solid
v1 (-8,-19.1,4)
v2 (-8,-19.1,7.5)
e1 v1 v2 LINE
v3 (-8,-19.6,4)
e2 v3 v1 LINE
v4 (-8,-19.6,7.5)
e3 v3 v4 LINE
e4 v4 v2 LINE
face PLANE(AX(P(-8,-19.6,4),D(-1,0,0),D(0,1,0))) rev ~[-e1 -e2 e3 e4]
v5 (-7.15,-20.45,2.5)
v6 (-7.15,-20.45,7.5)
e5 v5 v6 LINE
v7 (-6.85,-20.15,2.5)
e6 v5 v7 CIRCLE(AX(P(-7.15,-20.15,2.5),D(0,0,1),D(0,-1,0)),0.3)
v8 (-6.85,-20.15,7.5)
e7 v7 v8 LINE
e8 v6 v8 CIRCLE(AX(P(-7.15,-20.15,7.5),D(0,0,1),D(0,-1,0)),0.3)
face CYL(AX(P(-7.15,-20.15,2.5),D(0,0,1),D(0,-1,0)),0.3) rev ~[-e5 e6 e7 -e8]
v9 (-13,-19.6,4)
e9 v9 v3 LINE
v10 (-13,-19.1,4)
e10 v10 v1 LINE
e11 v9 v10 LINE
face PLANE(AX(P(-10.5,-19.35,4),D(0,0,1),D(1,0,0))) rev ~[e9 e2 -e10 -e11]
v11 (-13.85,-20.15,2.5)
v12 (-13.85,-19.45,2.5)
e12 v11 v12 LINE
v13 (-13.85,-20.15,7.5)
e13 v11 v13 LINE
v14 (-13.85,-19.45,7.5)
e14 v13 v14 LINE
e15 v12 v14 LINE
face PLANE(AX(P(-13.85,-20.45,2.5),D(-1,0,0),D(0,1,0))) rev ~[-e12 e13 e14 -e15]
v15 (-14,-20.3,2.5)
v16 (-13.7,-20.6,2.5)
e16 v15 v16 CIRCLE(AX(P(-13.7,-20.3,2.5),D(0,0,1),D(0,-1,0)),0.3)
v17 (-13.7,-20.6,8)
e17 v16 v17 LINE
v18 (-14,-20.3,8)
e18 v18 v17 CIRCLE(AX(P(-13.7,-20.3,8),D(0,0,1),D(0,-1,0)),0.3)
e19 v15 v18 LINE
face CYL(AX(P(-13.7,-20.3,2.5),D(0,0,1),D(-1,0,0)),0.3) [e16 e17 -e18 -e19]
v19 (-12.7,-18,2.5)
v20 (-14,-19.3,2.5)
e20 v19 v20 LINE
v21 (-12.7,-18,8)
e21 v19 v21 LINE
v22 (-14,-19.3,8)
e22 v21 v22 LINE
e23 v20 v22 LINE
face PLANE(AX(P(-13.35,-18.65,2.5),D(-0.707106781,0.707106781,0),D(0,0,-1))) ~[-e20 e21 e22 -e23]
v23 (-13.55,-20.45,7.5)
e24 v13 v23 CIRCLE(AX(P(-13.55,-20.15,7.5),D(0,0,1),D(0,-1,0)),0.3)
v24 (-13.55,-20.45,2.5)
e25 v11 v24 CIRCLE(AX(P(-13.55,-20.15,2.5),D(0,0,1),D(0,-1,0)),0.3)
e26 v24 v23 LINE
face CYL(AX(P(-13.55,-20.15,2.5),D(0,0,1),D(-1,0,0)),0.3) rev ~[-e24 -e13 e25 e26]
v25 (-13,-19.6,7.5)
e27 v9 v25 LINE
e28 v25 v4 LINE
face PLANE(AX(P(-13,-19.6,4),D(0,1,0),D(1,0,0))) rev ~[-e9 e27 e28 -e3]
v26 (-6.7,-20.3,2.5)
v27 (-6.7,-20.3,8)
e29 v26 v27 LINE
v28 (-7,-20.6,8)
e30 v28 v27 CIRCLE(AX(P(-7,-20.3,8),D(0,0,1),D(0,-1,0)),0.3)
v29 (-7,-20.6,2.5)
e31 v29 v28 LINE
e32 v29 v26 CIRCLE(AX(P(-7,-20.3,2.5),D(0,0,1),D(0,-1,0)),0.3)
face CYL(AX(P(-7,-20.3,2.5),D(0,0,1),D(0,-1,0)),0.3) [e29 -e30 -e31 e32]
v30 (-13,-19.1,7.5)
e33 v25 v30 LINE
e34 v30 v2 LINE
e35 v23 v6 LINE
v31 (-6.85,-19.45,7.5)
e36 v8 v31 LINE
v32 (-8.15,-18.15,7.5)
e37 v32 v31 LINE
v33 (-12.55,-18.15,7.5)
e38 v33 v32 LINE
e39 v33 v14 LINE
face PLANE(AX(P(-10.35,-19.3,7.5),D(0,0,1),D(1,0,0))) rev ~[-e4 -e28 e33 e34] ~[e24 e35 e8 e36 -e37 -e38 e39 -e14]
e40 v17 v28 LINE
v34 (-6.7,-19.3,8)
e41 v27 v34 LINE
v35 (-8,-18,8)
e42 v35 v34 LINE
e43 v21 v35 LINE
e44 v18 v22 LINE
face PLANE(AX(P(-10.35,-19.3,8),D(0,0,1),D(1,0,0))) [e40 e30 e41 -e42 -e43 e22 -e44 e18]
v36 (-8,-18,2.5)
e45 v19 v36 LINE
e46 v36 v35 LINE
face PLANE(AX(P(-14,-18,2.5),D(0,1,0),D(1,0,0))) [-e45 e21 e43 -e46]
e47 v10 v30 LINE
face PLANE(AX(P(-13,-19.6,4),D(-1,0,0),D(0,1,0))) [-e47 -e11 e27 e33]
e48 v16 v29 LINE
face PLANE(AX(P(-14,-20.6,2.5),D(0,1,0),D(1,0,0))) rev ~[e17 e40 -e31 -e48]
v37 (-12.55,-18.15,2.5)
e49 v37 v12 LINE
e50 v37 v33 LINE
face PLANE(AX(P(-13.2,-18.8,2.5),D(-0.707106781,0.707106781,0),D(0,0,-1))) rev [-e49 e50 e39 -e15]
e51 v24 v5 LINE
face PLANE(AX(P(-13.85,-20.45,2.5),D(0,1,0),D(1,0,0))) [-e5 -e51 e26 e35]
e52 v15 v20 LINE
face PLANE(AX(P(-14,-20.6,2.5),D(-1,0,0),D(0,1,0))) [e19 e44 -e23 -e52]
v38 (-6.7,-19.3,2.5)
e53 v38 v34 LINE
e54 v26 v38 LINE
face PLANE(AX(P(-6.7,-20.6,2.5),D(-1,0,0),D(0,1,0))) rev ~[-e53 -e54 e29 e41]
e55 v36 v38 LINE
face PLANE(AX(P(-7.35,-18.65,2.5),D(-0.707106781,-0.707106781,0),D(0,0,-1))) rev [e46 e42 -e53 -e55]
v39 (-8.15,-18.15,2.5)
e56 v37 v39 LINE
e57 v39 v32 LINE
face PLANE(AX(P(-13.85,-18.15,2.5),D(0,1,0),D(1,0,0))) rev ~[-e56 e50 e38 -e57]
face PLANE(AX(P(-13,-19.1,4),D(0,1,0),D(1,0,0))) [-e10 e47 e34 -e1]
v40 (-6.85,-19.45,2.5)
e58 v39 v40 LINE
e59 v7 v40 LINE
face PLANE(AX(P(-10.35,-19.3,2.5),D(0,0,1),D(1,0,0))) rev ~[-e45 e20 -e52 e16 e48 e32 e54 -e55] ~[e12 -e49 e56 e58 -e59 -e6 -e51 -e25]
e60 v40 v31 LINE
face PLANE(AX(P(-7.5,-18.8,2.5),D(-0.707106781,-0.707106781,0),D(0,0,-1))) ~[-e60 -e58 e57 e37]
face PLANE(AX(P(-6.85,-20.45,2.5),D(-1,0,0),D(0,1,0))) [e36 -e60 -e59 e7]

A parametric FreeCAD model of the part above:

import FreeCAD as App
import Part
import Sketcher
Q = App.Units.Quantity


def edges_at(feature, points):
    """Names of the edges that pass closest to the given points."""
    edges = feature.Shape.Edges
    near = lambda p: min(range(len(edges)), key=lambda i: edges[i].distToShape(Part.Vertex(*p))[0])
    return sorted({f"Edge{near(p) + 1}" for p in points})

doc = App.newDocument("Part")
body = doc.addObject("PartDesign::Body", "Body")

sketch1 = body.newObject("Sketcher::SketchObject", "Sketch")
sketch1.AttachmentSupport = (doc.getObject("XY_Plane"), [""])
sketch1.MapMode = "FlatFace"
sketch1.addGeometry(Part.LineSegment(App.Vector(0, 2.3, 0), App.Vector(0, 0, 0)), False)
sketch1.addGeometry(Part.LineSegment(App.Vector(0, 0, 0), App.Vector(7, 0, 0)), False)
sketch1.addGeometry(Part.LineSegment(App.Vector(7, 0, 0), App.Vector(7, 2.3, 0)), False)
sketch1.addGeometry(Part.LineSegment(App.Vector(7, 2.3, 0), App.Vector(0, 2.3, 0)), False)
sketch1.addConstraint(Sketcher.Constraint("Coincident", 0, 2, 1, 1))
sketch1.addConstraint(Sketcher.Constraint("Coincident", 1, 2, 2, 1))
sketch1.addConstraint(Sketcher.Constraint("Coincident", 2, 2, 3, 1))
sketch1.addConstraint(Sketcher.Constraint("Coincident", 3, 2, 0, 1))
sketch1.addConstraint(Sketcher.Constraint("Vertical", 0))
sketch1.addConstraint(Sketcher.Constraint("Horizontal", 1))
sketch1.addConstraint(Sketcher.Constraint("Vertical", 2))
sketch1.addConstraint(Sketcher.Constraint("Horizontal", 3))
sketch1.addConstraint(Sketcher.Constraint("Coincident", 0, 2, -1, 1))
sketch1.addConstraint(Sketcher.Constraint("DistanceX", 1, 1, 1, 2, Q("7 mm")))
sketch1.addConstraint(Sketcher.Constraint("DistanceY", 0, 2, 0, 1, Q("2.3 mm")))
pad1 = body.newObject("PartDesign::Pad", "Pad")
pad1.Profile = sketch1
pad1.Length = 5
doc.recompute()

fillet = body.newObject("PartDesign::Fillet", "Fillet")
fillet.Base = (pad1, edges_at(pad1, [(0, 0, 2.5), (7, 0, 2.5)]))
fillet.Radius = 0.3
doc.recompute()

chamfer = body.newObject("PartDesign::Chamfer", "Chamfer")
chamfer.Base = (fillet, edges_at(fillet, [(7, 2.3, 2.5)]))
chamfer.Size = 1.3
doc.recompute()

chamfer2 = body.newObject("PartDesign::Chamfer", "Chamfer001")
chamfer2.Base = (chamfer, edges_at(chamfer, [(0, 2.3, 2.5)]))
chamfer2.Size = 1.3
body2 = doc.addObject("PartDesign::Body", "Body001")
doc.recompute()

body.Placement = App.Placement(App.Vector(0.15, 0.15, 0), App.Rotation(App.Vector(0, 0, 1), 0))
boolean = body2.newObject("PartDesign::Boolean", "Boolean")
boolean.Type = "Fuse"
boolean.addObjects([body])
body3 = doc.addObject("PartDesign::Body", "Body002")

sketch2 = body3.newObject("Sketcher::SketchObject", "Sketch001")
sketch2.AttachmentSupport = (doc.getObject("XY_Plane002"), [""])
sketch2.MapMode = "FlatFace"
sketch2.addGeometry(Part.LineSegment(App.Vector(0, 2.6, 0), App.Vector(0, 0, 0)), False)
sketch2.addGeometry(Part.LineSegment(App.Vector(0, 0, 0), App.Vector(7.3, 0, 0)), False)
sketch2.addGeometry(Part.LineSegment(App.Vector(7.3, 0, 0), App.Vector(7.3, 2.6, 0)), False)
sketch2.addGeometry(Part.LineSegment(App.Vector(7.3, 2.6, 0), App.Vector(0, 2.6, 0)), False)
sketch2.addConstraint(Sketcher.Constraint("Coincident", 0, 2, 1, 1))
sketch2.addConstraint(Sketcher.Constraint("Coincident", 1, 2, 2, 1))
sketch2.addConstraint(Sketcher.Constraint("Coincident", 2, 2, 3, 1))
sketch2.addConstraint(Sketcher.Constraint("Coincident", 3, 2, 0, 1))
sketch2.addConstraint(Sketcher.Constraint("Vertical", 0))
sketch2.addConstraint(Sketcher.Constraint("Horizontal", 1))
sketch2.addConstraint(Sketcher.Constraint("Vertical", 2))
sketch2.addConstraint(Sketcher.Constraint("Horizontal", 3))
sketch2.addConstraint(Sketcher.Constraint("Coincident", 0, 2, -1, 1))
sketch2.addConstraint(Sketcher.Constraint("DistanceX", 1, 1, 1, 2, Q("7.3 mm")))
sketch2.addConstraint(Sketcher.Constraint("DistanceY", 0, 2, 0, 1, Q("2.6 mm")))
pad2 = body3.newObject("PartDesign::Pad", "Pad001")
pad2.Profile = sketch2
pad2.Length = 5.5
doc.recompute()

fillet2 = body3.newObject("PartDesign::Fillet", "Fillet001")
fillet2.Base = (pad2, edges_at(pad2, [(0, 0, 2.75), (7.3, 0, 2.75)]))
fillet2.Radius = 0.3
doc.recompute()

chamfer3 = body3.newObject("PartDesign::Chamfer", "Chamfer002")
chamfer3.Base = (fillet2, edges_at(fillet2, [(7.3, 2.6, 2.75)]))
chamfer3.Size = 1.3
doc.recompute()

chamfer4 = body3.newObject("PartDesign::Chamfer", "Chamfer003")
chamfer4.Base = (chamfer3, edges_at(chamfer3, [(0, 2.6, 2.75)]))
chamfer4.Size = 1.3
doc.recompute()

boolean2 = body3.newObject("PartDesign::Boolean", "Boolean001")
boolean2.Type = "Cut"
boolean2.addObjects([body2])
body4 = doc.addObject("PartDesign::Body", "Body003")

sketch3 = body4.newObject("Sketcher::SketchObject", "Sketch002")
sketch3.AttachmentSupport = (doc.getObject("XY_Plane003"), [""])
sketch3.MapMode = "FlatFace"
sketch3.AttachmentOffset = App.Placement(App.Vector(0, 0, 1.5), App.Rotation())
sketch3.addGeometry(Part.LineSegment(App.Vector(1, 1.5, 0), App.Vector(1, 1, 0)), False)
sketch3.addGeometry(Part.LineSegment(App.Vector(1, 1, 0), App.Vector(6, 1, 0)), False)
sketch3.addGeometry(Part.LineSegment(App.Vector(6, 1, 0), App.Vector(6, 1.5, 0)), False)
sketch3.addGeometry(Part.LineSegment(App.Vector(6, 1.5, 0), App.Vector(1, 1.5, 0)), False)
sketch3.addConstraint(Sketcher.Constraint("Coincident", 0, 2, 1, 1))
sketch3.addConstraint(Sketcher.Constraint("Coincident", 1, 2, 2, 1))
sketch3.addConstraint(Sketcher.Constraint("Coincident", 2, 2, 3, 1))
sketch3.addConstraint(Sketcher.Constraint("Coincident", 3, 2, 0, 1))
sketch3.addConstraint(Sketcher.Constraint("Vertical", 0))
sketch3.addConstraint(Sketcher.Constraint("Horizontal", 1))
sketch3.addConstraint(Sketcher.Constraint("Vertical", 2))
sketch3.addConstraint(Sketcher.Constraint("Horizontal", 3))
sketch3.addConstraint(Sketcher.Constraint("DistanceX", 1, 1, 1, 2, Q("5 mm")))
sketch3.addConstraint(Sketcher.Constraint("DistanceY", 0, 2, 0, 1, Q("0.5 mm")))
sketch3.addConstraint(Sketcher.Constraint("DistanceX", -1, 1, 0, 2, Q("1 mm")))
sketch3.addConstraint(Sketcher.Constraint("DistanceY", -1, 1, 0, 2, Q("1 mm")))
pad3 = body4.newObject("PartDesign::Pad", "Pad002")
pad3.Profile = sketch3
pad3.Length = 4
doc.recompute()

boolean3 = body4.newObject("PartDesign::Boolean", "Boolean002")
boolean3.Type = "Fuse"
boolean3.addObjects([body3])
body5 = doc.addObject("PartDesign::Body", "Body004")
doc.recompute()

body4.Placement = App.Placement(App.Vector(-14, -20.6, 2.5), App.Rotation(App.Vector(0, 0, 1), 0))
boolean4 = body5.newObject("PartDesign::Boolean", "Boolean003")
boolean4.Type = "Fuse"
boolean4.addObjects([body4])

doc.recompute()
